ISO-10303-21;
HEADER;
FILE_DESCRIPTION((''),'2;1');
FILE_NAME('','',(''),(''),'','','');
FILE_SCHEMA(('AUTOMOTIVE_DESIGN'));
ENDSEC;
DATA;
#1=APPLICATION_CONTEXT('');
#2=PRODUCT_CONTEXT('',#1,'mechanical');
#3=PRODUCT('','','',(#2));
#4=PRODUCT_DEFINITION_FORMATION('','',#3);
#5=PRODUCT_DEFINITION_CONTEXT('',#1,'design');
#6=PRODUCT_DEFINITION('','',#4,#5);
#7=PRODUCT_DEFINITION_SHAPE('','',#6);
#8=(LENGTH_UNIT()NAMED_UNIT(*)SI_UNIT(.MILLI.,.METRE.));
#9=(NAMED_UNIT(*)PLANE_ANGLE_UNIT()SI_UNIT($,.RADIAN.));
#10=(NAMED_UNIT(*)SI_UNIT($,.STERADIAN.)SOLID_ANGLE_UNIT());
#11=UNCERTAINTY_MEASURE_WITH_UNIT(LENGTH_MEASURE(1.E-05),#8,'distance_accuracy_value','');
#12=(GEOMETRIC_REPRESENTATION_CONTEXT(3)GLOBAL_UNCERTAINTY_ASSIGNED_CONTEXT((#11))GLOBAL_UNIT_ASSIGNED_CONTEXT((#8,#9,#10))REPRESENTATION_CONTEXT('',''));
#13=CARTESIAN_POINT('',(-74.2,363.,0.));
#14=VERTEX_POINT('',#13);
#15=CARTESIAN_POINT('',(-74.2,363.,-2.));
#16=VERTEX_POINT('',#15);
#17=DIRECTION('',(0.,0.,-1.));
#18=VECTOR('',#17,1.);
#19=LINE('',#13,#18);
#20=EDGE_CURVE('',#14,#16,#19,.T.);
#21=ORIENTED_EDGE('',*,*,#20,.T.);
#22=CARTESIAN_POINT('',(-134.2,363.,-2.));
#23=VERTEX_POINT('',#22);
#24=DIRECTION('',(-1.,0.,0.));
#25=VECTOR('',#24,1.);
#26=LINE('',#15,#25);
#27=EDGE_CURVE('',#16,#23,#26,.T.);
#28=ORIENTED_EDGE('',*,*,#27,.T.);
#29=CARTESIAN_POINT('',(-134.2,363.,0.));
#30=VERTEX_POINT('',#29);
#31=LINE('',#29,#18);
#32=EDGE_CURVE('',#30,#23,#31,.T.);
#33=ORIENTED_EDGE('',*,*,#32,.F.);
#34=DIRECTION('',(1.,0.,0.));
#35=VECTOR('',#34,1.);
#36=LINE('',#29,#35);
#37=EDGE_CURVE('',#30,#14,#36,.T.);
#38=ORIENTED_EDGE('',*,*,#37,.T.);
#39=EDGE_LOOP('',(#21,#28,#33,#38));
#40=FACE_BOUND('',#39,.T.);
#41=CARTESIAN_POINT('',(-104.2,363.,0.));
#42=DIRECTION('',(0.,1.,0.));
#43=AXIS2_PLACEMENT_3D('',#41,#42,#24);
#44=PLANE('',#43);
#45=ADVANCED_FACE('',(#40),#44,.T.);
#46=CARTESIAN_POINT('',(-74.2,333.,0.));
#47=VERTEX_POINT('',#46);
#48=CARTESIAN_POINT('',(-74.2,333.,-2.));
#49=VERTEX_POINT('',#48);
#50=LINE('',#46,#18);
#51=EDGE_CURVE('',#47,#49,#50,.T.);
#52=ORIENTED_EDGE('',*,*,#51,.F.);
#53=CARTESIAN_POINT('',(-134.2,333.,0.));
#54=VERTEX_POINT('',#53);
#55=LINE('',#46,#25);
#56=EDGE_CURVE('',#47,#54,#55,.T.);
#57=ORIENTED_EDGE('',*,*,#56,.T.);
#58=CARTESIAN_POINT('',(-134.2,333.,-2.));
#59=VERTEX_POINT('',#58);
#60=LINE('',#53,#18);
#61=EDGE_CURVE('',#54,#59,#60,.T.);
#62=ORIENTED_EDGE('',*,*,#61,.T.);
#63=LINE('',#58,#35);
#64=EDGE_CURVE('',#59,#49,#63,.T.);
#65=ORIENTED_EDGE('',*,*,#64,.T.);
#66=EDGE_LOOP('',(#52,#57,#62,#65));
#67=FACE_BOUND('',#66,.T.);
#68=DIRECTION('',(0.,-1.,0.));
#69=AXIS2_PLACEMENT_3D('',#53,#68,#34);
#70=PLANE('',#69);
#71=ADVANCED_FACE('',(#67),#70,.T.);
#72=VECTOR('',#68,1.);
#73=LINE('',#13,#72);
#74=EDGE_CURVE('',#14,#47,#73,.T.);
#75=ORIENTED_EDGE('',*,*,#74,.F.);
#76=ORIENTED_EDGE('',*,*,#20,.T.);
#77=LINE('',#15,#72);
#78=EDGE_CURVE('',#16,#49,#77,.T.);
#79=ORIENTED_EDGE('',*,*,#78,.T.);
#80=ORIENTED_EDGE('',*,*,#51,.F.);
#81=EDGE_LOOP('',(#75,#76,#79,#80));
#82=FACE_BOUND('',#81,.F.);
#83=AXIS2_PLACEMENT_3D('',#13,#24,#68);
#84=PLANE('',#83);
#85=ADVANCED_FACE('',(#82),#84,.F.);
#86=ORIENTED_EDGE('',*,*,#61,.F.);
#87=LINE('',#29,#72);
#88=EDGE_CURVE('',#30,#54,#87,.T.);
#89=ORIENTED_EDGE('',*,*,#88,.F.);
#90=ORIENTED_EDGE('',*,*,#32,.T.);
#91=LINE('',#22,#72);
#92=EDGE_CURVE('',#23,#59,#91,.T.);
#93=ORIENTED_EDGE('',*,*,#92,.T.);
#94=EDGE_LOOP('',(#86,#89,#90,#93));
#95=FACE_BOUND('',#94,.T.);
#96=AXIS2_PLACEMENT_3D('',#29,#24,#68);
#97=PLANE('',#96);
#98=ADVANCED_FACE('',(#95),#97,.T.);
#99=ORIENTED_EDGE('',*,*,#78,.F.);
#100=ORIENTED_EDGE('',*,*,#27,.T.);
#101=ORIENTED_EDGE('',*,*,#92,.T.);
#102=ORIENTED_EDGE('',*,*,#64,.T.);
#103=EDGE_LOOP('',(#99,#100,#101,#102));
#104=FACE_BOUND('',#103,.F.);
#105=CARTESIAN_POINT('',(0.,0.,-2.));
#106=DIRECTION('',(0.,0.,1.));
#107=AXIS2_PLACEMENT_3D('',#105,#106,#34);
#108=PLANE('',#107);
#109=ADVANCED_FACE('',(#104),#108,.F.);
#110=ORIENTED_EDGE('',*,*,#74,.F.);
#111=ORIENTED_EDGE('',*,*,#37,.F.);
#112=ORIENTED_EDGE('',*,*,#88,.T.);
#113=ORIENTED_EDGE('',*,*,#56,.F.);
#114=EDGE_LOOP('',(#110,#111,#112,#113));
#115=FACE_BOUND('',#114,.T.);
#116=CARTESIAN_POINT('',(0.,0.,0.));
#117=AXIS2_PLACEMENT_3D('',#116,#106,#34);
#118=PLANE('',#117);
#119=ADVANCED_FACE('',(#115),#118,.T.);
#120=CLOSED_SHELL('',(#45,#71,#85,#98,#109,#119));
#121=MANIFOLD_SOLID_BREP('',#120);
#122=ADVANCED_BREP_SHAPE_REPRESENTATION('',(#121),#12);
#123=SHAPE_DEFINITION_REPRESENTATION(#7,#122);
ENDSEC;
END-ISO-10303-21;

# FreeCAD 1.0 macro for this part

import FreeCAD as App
import Part
import Sketcher

V = App.Vector


def add_polygon(sketch, points):
    """Adds a closed chain of lines whose ends are joined by coincident constraints."""
    first, n = sketch.GeometryCount, len(points)
    for a, b in zip(points, points[1:] + points[:1]):
        sketch.addGeometry(Part.LineSegment(App.Vector(*a, 0), App.Vector(*b, 0)), False)
    for i in range(n):
        sketch.addConstraint(Sketcher.Constraint("Coincident", first + i, 2, first + (i + 1) % n, 1))

doc = App.newDocument("Part")
body = doc.addObject("PartDesign::Body", "Body")

# Sketch on XY plane
sketch1 = doc.addObject("Sketcher::SketchObject", "Sketch")
body.addObject(sketch1)
sketch1.AttachmentSupport = (doc.XY_Plane, [""])
sketch1.MapMode = "FlatFace"
add_polygon(sketch1, [(-134, 363), (-134, 333), (-74, 333), (-74, 363)])  # lines 0-3
sketch1.addConstraint([
    Sketcher.Constraint("Vertical", 0),
    Sketcher.Constraint("Horizontal", 1),
    Sketcher.Constraint("Vertical", 2),
    Sketcher.Constraint("Horizontal", 3),
    Sketcher.Constraint("DistanceY", 0, 2, 0, 1, 30.0),
    Sketcher.Constraint("DistanceX", 1, 1, 1, 2, 60.0),
    Sketcher.Constraint("DistanceY", -1, 1, 0, 2, 333.0),
    Sketcher.Constraint("DistanceX", 0, 2, -1, 1, 134.2),
])
pad1 = doc.addObject("PartDesign::Pad", "Pad")
body.addObject(pad1)
pad1.Profile = sketch1
pad1.Length = 2
pad1.Reversed = True

doc.recompute()
